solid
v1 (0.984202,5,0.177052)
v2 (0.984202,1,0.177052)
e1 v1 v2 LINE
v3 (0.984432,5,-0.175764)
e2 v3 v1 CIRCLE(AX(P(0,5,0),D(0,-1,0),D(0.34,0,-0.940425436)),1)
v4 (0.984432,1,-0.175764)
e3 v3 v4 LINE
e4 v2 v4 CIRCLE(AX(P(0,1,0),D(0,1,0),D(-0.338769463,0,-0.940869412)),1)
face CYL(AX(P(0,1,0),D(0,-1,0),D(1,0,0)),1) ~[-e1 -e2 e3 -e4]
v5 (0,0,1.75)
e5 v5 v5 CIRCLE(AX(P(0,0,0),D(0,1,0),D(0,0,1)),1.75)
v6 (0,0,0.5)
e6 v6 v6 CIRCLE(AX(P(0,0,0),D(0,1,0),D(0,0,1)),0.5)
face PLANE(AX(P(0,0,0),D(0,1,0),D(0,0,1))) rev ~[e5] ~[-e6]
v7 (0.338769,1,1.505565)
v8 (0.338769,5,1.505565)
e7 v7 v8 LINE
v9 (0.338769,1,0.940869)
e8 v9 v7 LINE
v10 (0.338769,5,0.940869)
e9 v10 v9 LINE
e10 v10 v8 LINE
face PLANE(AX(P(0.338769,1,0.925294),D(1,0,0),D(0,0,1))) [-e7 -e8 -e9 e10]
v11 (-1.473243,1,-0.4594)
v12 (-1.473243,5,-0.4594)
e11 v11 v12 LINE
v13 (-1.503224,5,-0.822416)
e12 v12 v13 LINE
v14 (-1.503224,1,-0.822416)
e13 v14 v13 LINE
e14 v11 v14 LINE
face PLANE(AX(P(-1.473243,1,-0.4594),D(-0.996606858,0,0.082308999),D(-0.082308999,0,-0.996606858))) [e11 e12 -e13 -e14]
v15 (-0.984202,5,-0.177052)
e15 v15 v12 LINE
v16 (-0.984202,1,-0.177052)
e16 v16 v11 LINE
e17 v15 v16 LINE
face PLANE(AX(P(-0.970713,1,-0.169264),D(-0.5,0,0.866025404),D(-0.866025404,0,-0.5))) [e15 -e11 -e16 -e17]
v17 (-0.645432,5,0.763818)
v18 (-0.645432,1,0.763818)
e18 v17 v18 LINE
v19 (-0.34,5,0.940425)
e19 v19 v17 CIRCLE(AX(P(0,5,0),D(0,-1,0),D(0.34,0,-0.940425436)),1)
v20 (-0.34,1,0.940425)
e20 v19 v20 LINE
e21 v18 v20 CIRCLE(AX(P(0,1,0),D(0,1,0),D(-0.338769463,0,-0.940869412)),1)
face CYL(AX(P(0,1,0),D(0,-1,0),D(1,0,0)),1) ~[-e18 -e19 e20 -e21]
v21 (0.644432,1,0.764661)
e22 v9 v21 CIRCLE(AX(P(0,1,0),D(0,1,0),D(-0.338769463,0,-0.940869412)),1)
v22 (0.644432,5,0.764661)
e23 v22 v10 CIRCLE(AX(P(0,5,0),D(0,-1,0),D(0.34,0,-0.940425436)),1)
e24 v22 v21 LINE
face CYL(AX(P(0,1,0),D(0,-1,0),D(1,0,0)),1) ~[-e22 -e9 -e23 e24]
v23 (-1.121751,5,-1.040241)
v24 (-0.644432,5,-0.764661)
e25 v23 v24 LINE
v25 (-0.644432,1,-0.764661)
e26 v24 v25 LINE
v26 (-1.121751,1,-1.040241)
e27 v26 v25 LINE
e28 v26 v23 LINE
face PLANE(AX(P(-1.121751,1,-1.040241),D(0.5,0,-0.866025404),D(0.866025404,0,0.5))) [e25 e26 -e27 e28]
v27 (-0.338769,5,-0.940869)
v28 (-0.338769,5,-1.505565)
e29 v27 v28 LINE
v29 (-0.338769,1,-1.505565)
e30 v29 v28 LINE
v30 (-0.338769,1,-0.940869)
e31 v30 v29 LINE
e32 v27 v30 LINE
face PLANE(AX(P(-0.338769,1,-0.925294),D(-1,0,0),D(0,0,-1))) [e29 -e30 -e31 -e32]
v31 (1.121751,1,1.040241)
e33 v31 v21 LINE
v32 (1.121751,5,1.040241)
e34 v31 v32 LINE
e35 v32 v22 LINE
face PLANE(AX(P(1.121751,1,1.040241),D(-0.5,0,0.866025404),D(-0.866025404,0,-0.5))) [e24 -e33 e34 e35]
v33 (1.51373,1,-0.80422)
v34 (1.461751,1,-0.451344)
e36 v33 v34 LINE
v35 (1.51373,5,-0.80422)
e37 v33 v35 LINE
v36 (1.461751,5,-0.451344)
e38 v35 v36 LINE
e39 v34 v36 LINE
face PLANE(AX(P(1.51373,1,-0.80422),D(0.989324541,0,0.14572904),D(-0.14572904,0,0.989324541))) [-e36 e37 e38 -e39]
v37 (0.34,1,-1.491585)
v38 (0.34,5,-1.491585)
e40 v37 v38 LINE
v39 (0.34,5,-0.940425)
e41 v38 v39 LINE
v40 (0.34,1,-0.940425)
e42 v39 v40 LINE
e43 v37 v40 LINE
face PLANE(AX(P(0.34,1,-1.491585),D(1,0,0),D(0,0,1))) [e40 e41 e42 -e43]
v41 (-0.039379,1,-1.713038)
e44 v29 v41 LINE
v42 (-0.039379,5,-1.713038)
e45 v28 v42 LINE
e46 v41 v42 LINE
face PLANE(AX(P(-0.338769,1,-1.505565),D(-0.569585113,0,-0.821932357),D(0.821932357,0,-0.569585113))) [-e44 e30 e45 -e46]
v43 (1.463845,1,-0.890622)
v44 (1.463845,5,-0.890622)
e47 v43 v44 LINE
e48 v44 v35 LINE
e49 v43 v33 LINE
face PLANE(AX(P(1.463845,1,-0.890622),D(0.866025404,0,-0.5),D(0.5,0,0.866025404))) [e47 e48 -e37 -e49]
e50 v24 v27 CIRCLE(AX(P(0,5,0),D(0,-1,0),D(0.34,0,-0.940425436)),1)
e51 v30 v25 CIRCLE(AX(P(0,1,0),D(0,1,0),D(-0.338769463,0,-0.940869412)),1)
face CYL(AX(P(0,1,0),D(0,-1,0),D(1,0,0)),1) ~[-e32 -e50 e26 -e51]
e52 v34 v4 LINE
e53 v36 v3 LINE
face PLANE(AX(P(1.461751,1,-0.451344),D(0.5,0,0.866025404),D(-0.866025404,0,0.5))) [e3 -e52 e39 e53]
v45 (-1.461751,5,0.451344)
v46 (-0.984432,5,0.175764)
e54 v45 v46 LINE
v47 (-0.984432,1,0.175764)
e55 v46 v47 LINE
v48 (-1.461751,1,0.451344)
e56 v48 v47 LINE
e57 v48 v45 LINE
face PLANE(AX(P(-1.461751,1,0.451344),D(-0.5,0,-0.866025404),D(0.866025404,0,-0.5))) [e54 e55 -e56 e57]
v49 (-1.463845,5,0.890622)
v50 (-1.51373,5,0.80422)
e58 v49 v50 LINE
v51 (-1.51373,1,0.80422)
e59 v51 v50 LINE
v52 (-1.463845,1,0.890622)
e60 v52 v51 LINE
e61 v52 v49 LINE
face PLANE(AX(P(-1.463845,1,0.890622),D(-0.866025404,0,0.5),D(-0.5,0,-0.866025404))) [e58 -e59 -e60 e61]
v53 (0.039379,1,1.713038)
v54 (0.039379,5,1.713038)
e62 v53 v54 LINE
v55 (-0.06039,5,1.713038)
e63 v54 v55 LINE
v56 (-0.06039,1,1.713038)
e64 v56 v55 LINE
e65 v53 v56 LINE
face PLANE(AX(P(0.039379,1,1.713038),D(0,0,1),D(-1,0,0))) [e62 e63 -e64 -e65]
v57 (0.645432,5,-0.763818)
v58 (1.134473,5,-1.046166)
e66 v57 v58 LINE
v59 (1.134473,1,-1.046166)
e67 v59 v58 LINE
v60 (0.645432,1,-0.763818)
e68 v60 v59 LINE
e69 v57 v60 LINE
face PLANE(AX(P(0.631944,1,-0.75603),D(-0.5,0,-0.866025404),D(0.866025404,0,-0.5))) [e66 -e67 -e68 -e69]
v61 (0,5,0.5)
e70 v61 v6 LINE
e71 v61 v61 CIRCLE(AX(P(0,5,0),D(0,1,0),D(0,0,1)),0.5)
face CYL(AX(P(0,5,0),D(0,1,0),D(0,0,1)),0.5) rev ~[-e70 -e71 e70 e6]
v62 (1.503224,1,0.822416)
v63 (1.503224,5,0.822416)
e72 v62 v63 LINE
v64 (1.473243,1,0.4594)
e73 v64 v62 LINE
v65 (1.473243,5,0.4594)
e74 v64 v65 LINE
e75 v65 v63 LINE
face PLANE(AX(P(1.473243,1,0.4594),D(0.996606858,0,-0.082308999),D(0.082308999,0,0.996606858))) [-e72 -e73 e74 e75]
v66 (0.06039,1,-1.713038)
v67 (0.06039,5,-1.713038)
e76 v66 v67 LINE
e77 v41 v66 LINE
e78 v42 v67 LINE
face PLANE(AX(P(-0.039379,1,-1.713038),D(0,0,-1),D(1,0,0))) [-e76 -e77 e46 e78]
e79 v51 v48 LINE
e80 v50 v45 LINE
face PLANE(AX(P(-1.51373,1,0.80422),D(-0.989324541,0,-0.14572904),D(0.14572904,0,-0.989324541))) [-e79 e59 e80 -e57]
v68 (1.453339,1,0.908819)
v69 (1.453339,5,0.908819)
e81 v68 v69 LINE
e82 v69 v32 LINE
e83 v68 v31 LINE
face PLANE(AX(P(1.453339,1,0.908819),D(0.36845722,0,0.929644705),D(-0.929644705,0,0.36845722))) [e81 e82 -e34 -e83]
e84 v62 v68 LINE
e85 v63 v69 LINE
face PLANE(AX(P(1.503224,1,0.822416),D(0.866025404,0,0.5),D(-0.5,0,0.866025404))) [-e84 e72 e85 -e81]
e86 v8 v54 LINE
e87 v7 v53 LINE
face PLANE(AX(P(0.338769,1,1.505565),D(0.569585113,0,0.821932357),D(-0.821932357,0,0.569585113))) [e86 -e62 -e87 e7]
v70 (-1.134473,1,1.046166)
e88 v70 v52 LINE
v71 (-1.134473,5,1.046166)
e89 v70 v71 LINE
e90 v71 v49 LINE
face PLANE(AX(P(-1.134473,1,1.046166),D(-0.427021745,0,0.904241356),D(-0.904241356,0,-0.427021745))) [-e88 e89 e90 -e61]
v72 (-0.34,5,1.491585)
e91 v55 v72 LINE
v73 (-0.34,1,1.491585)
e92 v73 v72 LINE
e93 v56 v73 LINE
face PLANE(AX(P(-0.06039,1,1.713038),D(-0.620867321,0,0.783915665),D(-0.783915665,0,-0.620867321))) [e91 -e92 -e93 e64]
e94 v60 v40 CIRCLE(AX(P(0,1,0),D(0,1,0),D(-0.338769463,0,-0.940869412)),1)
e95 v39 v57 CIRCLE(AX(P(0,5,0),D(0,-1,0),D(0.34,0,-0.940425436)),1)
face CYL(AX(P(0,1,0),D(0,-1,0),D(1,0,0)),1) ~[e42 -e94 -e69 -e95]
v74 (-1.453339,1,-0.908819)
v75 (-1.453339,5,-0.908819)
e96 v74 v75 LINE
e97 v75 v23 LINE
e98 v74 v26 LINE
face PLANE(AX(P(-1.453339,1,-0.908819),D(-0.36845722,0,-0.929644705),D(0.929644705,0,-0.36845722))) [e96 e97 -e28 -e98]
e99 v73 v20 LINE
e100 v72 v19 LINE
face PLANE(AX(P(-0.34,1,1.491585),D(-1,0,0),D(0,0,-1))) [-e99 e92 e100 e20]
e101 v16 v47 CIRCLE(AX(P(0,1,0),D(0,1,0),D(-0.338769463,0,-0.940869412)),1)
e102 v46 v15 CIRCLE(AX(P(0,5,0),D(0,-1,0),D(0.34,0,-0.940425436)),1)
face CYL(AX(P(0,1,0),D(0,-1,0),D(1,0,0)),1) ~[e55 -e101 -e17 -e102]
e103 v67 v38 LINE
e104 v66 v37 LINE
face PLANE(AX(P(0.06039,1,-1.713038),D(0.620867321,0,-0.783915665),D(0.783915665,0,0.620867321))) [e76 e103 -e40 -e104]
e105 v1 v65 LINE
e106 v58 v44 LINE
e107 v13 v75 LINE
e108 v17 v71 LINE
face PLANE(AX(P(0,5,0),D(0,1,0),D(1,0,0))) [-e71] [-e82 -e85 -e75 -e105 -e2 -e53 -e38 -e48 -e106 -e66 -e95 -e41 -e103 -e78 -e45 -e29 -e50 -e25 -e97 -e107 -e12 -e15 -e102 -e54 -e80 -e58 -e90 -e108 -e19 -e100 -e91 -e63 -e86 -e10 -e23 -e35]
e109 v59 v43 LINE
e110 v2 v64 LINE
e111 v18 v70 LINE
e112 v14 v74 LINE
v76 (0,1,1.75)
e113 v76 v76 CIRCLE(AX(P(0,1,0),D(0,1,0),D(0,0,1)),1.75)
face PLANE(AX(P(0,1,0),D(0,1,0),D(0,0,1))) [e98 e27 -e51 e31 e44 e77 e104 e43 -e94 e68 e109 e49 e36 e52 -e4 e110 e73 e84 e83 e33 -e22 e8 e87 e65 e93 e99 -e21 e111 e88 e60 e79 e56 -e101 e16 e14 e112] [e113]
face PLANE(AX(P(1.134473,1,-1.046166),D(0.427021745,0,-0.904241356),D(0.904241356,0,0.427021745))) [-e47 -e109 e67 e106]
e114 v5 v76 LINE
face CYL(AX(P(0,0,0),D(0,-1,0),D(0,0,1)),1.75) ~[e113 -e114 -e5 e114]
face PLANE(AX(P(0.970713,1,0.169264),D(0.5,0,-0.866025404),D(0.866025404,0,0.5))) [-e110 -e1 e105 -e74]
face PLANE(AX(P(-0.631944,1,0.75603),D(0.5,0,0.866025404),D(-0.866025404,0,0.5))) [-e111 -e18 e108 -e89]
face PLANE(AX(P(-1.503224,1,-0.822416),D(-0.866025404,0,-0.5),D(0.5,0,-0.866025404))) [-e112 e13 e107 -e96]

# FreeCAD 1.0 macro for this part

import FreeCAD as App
import Part
import Sketcher

doc = App.newDocument("Part")
params = doc.addObject("Spreadsheet::Sheet", "Params")
for row, (alias, value) in enumerate([
    ("sketch1_diameter", "3.5 mm"),
    ("pad1_length", "1 mm"),
    ("pad2_length", "4 mm"),
    ("sketch3_diameter", "2 mm"),
    ("pad3_length", "4 mm"),
    ("sketch4_diameter", "1 mm"),
], start=1):
    params.set(f"A{row}", alias)
    params.set(f"B{row}", "=" + value)
    params.setAlias(f"B{row}", alias)

body = doc.addObject("PartDesign::Body", "Body")

# Sketch on XZ plane
sketch1 = body.newObject("Sketcher::SketchObject", "Sketch")
sketch1.AttachmentSupport = (doc.getObject("XZ_Plane"), [""])
sketch1.MapMode = "FlatFace"
sketch1.addGeometry(Part.Circle(App.Vector(0, 0, 0), App.Vector(0, 0, 1), 1.75), False)
sketch1.addConstraint([
    Sketcher.Constraint("Coincident", 0, 3, -1, 1),
    Sketcher.Constraint("Diameter", 0, 3.5),
])
sketch1.setExpression("Constraints[1]", "Params.sketch1_diameter")
pad1 = body.newObject("PartDesign::Pad", "Pad")
pad1.Profile = sketch1
pad1.setExpression("Length", "Params.pad1_length")
pad1.Reversed = True

# Sketch on XZ plane
sketch2 = body.newObject("Sketcher::SketchObject", "Sketch001")
sketch2.AttachmentSupport = (doc.getObject("XZ_Plane"), [""])
sketch2.MapMode = "FlatFace"
sketch2.AttachmentOffset = App.Placement(App.Vector(0, 0, -1), App.Rotation())
sketch2.addGeometry([
    Part.LineSegment(App.Vector(-0.338769, -1.505565, 0), App.Vector(-0.338769, -0.925294, 0)),  # 0
    Part.LineSegment(App.Vector(-0.338769, -0.925294, 0), App.Vector(0.34, -0.925294, 0)),  # 1
    Part.LineSegment(App.Vector(0.34, -0.925294, 0), App.Vector(0.34, -1.491585, 0)),  # 2
    Part.LineSegment(App.Vector(0.34, -1.491585, 0), App.Vector(0.06039, -1.713038, 0)),  # 3
    Part.LineSegment(App.Vector(0.06039, -1.713038, 0), App.Vector(-0.039379, -1.713038, 0)),  # 4
    Part.LineSegment(App.Vector(-0.039379, -1.713038, 0), App.Vector(-0.338769, -1.505565, 0)),  # 5
], False)
sketch2.addConstraint([
    Sketcher.Constraint("Coincident", 0, 2, 1, 1),
    Sketcher.Constraint("Coincident", 1, 2, 2, 1),
    Sketcher.Constraint("Coincident", 2, 2, 3, 1),
    Sketcher.Constraint("Coincident", 3, 2, 4, 1),
    Sketcher.Constraint("Coincident", 4, 2, 5, 1),
    Sketcher.Constraint("Coincident", 5, 2, 0, 1),
    Sketcher.Constraint("Vertical", 0),
    Sketcher.Constraint("Horizontal", 1),
    Sketcher.Constraint("Vertical", 2),
    Sketcher.Constraint("Horizontal", 4),
    Sketcher.Constraint("DistanceX", -1, 1, 1, 2, 0.34),
    Sketcher.Constraint("DistanceX", 1, 1, 1, 2, 0.678769),
    Sketcher.Constraint("DistanceX", 4, 2, 4, 1, 0.099769),
    Sketcher.Constraint("DistanceY", 0, 1, 0, 2, 0.580271),
    Sketcher.Constraint("DistanceY", 2, 2, 2, 1, 0.566291),
    Sketcher.Constraint("DistanceX", -1, 1, 3, 2, 0.06039),
    Sketcher.Constraint("DistanceY", 3, 2, -1, 1, 1.713038),
    Sketcher.Constraint("Distance", 3, 0.356683),
])
pad2 = body.newObject("PartDesign::Pad", "Pad001")
pad2.Profile = sketch2
pad2.setExpression("Length", "Params.pad2_length")
pad2.Reversed = True

# Sketch on XZ plane
sketch3 = body.newObject("Sketcher::SketchObject", "Sketch002")
sketch3.AttachmentSupport = (doc.getObject("XZ_Plane"), [""])
sketch3.MapMode = "FlatFace"
sketch3.AttachmentOffset = App.Placement(App.Vector(0, 0, -1), App.Rotation())
sketch3.addGeometry(Part.Circle(App.Vector(0, 0, 0), App.Vector(0, 0, 1), 1), False)
sketch3.addConstraint([
    Sketcher.Constraint("Coincident", 0, 3, -1, 1),
    Sketcher.Constraint("Diameter", 0, 2.0),
])
sketch3.setExpression("Constraints[1]", "Params.sketch3_diameter")
pad3 = body.newObject("PartDesign::Pad", "Pad002")
pad3.Profile = sketch3
pad3.setExpression("Length", "Params.pad3_length")
pad3.Reversed = True
doc.recompute()

polarpattern = body.newObject("PartDesign::PolarPattern", "PolarPattern")
polarpattern.Originals = [pad2]
polarpattern.Axis = (doc.getObject("Y_Axis"), [""])
polarpattern.Angle = 360
polarpattern.Occurrences = 6
body.Tip = polarpattern

# Sketch on XZ plane
sketch4 = body.newObject("Sketcher::SketchObject", "Sketch003")
sketch4.AttachmentSupport = (doc.getObject("XZ_Plane"), [""])
sketch4.MapMode = "FlatFace"
sketch4.AttachmentOffset = App.Placement(App.Vector(0, 0, -5), App.Rotation())
sketch4.addGeometry(Part.Circle(App.Vector(0, 0, 0), App.Vector(0, 0, 1), 0.5), False)
sketch4.addConstraint([
    Sketcher.Constraint("Coincident", 0, 3, -1, 1),
    Sketcher.Constraint("Diameter", 0, 1.0),
])
sketch4.setExpression("Constraints[1]", "Params.sketch4_diameter")
pocket1 = body.newObject("PartDesign::Pocket", "Pocket")
pocket1.Profile = sketch4
pocket1.Type = "ThroughAll"
pocket1.Reversed = True

doc.recompute()
